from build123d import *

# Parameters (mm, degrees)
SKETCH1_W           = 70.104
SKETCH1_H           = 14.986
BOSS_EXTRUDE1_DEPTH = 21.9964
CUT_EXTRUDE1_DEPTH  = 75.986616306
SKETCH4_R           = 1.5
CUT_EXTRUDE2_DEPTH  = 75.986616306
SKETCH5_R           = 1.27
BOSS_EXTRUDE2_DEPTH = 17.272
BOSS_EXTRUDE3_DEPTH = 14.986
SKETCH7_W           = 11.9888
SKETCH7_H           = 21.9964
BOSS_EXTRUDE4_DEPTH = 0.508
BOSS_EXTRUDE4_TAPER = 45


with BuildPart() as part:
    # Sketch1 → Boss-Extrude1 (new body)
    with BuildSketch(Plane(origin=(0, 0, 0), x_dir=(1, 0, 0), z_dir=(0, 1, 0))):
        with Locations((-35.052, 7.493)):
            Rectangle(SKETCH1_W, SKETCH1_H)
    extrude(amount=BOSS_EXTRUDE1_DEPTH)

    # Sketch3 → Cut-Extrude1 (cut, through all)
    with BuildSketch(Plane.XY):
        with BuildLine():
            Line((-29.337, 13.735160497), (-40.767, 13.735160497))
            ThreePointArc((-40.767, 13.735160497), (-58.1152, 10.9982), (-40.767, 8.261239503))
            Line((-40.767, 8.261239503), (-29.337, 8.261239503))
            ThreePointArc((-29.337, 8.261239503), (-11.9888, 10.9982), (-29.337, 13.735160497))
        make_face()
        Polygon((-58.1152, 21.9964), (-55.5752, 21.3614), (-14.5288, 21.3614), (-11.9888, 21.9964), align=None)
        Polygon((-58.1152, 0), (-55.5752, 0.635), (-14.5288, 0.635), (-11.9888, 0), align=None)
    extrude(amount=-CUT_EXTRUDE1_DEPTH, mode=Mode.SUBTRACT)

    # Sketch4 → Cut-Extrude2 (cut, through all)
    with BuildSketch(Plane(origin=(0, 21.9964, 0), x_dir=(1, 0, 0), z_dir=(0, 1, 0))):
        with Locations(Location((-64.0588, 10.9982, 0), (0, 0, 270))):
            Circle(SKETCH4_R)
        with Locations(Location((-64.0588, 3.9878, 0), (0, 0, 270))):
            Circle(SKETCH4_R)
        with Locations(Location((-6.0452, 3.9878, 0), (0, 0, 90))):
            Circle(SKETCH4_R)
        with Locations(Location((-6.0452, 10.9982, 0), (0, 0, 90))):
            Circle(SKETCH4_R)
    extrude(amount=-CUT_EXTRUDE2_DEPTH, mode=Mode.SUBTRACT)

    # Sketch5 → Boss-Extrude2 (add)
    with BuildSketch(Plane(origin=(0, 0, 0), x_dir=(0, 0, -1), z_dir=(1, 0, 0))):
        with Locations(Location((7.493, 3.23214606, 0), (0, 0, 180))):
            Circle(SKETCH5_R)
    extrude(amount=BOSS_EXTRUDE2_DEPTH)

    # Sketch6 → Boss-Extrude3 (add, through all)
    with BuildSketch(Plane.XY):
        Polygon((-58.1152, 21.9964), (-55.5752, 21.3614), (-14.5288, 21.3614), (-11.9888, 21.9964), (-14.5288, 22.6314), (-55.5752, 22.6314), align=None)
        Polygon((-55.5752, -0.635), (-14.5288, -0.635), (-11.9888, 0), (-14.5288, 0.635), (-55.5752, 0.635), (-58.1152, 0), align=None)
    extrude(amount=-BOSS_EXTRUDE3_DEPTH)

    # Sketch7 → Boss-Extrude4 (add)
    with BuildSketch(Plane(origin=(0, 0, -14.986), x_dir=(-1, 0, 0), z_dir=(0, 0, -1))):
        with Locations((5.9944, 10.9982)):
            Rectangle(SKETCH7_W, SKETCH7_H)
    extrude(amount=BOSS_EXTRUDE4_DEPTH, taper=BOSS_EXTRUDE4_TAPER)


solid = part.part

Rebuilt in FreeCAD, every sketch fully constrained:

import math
import FreeCAD as App
import Part
import Sketcher
from FreeCAD import Vector
Q = App.Units.Quantity


def add_polygon(sketch, points):
    """Adds a closed chain of lines whose ends are joined by coincident constraints."""
    first, n = sketch.GeometryCount, len(points)
    for a, b in zip(points, points[1:] + points[:1]):
        sketch.addGeometry(Part.LineSegment(App.Vector(*a, 0), App.Vector(*b, 0)), False)
    for i in range(n):
        sketch.addConstraint(Sketcher.Constraint("Coincident", first + i, 2, first + (i + 1) % n, 1))

doc = App.newDocument("Part")
params = doc.addObject("Spreadsheet::Sheet", "Params")
for row, (alias, value) in enumerate([
    ("sketch1_width", "2.76 in"),
    ("sketch1_height", "0.59 in"),
    ("pad1_length", "0.866 in"),
    ("sketch2_radius", "0.35 in"),
    ("sketch2_width", "0.45 in"),
    ("sketch2_width2", "1.616 in"),
    ("sketch4_diameter", "0.1 in"),
    ("pad2_length", "0.68 in"),
    ("sketch5_width", "1.616 in"),
    ("pad3_length", "0.59 in"),
    ("sketch6_width", "0.472 in"),
    ("sketch6_height", "0.866 in"),
    ("pad4_length", "0.02 in"),
    ("pad4_taper", "-45 deg"),
], start=1):
    params.set(f"A{row}", alias)
    params.set(f"B{row}", "=" + value)
    params.setAlias(f"B{row}", alias)

body = doc.addObject("PartDesign::Body", "Body")

# Sketch on XZ plane
sketch1 = body.newObject("Sketcher::SketchObject", "Sketch")
sketch1.AttachmentSupport = (doc.getObject("XZ_Plane"), [""])
sketch1.MapMode = "FlatFace"
add_polygon(sketch1, [(-70, -15), (-70, 0), (0, 0), (0, -15)])  # lines 0-3
sketch1.addConstraint(Sketcher.Constraint("Vertical", 0))
sketch1.addConstraint(Sketcher.Constraint("Horizontal", 1))
sketch1.addConstraint(Sketcher.Constraint("Vertical", 2))
sketch1.addConstraint(Sketcher.Constraint("Horizontal", 3))
sketch1.addConstraint(Sketcher.Constraint("Coincident", 1, 2, -1, 1))
sketch1.addConstraint(Sketcher.Constraint("DistanceX", 1, 1, 1, 2, Q("2.76 in")))
sketch1.addConstraint(Sketcher.Constraint("DistanceY", 0, 1, 0, 2, Q("0.59 in")))
sketch1.setExpression("Constraints[9]", "Params.sketch1_width")
sketch1.setExpression("Constraints[10]", "Params.sketch1_height")
pad1 = body.newObject("PartDesign::Pad", "Pad")
pad1.Profile = sketch1
pad1.setExpression("Length", "Params.pad1_length")
pad1.Reversed = True

# Sketch on XY plane
sketch2 = body.newObject("Sketcher::SketchObject", "Sketch001")
sketch2.AttachmentSupport = (doc.getObject("XY_Plane"), [""])
sketch2.MapMode = "FlatFace"
sketch2.addGeometry(Part.LineSegment(Vector(-29.3, 13.7, 0), Vector(-40.8, 13.7, 0)), False)  # 0
sketch2.addGeometry(Part.ArcOfCircle(Part.Circle(Vector(-49.2, 11, 0), Vector(0, 0, 1), 8.9), math.radians(18), math.radians(342)), False)  # 1
sketch2.addGeometry(Part.LineSegment(Vector(-40.8, 8.3, 0), Vector(-29.3, 8.3, 0)), False)  # 2
sketch2.addGeometry(Part.ArcOfCircle(Part.Circle(Vector(-20.9, 11, 0), Vector(0, 0, 1), 8.9), math.radians(-162), math.radians(162)), False)  # 3
add_polygon(sketch2, [(-58.1, 22), (-55.6, 21.4), (-14.5, 21.4), (-12, 22)])  # lines 4-7
add_polygon(sketch2, [(-55.6, 0.6), (-58.1, 0), (-12, 0), (-14.5, 0.6)])  # lines 8-11
sketch2.addConstraint(Sketcher.Constraint("Coincident", 0, 2, 1, 1))
sketch2.addConstraint(Sketcher.Constraint("Coincident", 1, 2, 2, 1))
sketch2.addConstraint(Sketcher.Constraint("Coincident", 2, 2, 3, 1))
sketch2.addConstraint(Sketcher.Constraint("Coincident", 3, 2, 0, 1))
sketch2.addConstraint(Sketcher.Constraint("Horizontal", 0))
sketch2.addConstraint(Sketcher.Constraint("Horizontal", 2))
sketch2.addConstraint(Sketcher.Constraint("Horizontal", 5))
sketch2.addConstraint(Sketcher.Constraint("Horizontal", 7))
sketch2.addConstraint(Sketcher.Constraint("Horizontal", 9))
sketch2.addConstraint(Sketcher.Constraint("Horizontal", 11))
sketch2.addConstraint(Sketcher.Constraint("Equal", 1, 3))
sketch2.addConstraint(Sketcher.Constraint("PointOnObject", 8, 2, -1))
sketch2.addConstraint(Sketcher.Constraint("Parallel", 6, 8))
sketch2.addConstraint(Sketcher.Constraint("Parallel", 4, 10))
sketch2.addConstraint(Sketcher.Constraint("Horizontal", 1, 3, 3, 3))
sketch2.addConstraint(Sketcher.Constraint("Vertical", 0, 2, 1, 2))
sketch2.addConstraint(Sketcher.Constraint("Vertical", 7, 2, 8, 2))
sketch2.addConstraint(Sketcher.Constraint("Vertical", 6, 2, 9, 2))
sketch2.addConstraint(Sketcher.Constraint("Vertical", 5, 2, 10, 2))
sketch2.addConstraint(Sketcher.Constraint("Vertical", 4, 2, 11, 2))
sketch2.addConstraint(Sketcher.Constraint("Radius", 1, Q("0.35 in")))
sketch2.addConstraint(Sketcher.Constraint("DistanceX", 0, 2, 0, 1, Q("0.45 in")))
sketch2.addConstraint(Sketcher.Constraint("DistanceX", 5, 2, 6, 2, Q("0.1 in")))
sketch2.addConstraint(Sketcher.Constraint("DistanceX", 5, 1, 5, 2, Q("1.616 in")))
sketch2.addConstraint(Sketcher.Constraint("DistanceX", 4, 2, 1, 3, Q("0.25 in")))
sketch2.addConstraint(Sketcher.Constraint("DistanceX", 3, 3, 5, 2, Q("0.25 in")))
sketch2.addConstraint(Sketcher.Constraint("DistanceX", 1, 3, -1, 1, Q("1.938 in")))
sketch2.addConstraint(Sketcher.Constraint("DistanceY", -1, 1, 1, 3, Q("0.433 in")))
sketch2.addConstraint(Sketcher.Constraint("DistanceY", -1, 1, 4, 2, Q("0.841 in")))
sketch2.addConstraint(Sketcher.Constraint("DistanceY", -1, 1, 6, 2, Q("0.866 in")))
sketch2.setExpression("Constraints[28]", "Params.sketch2_radius")
sketch2.setExpression("Constraints[29]", "Params.sketch2_width")
sketch2.setExpression("Constraints[31]", "Params.sketch2_width2")
pocket1 = body.newObject("PartDesign::Pocket", "Pocket")
pocket1.Profile = sketch2
pocket1.Type = "ThroughAll"

# Sketch on XZ plane
sketch3 = body.newObject("Sketcher::SketchObject", "Sketch002")
sketch3.AttachmentSupport = (doc.getObject("XZ_Plane"), [""])
sketch3.MapMode = "FlatFace"
sketch3.AttachmentOffset = App.Placement(Vector(0, 0, -0.866 * 25.4), App.Rotation())
sketch3.addGeometry(Part.Circle(Vector(-64.1, -11, 0), Vector(0, 0, 1), 1.5), False)
sketch3.addGeometry(Part.Circle(Vector(-64.1, -4, 0), Vector(0, 0, 1), 1.5), False)
sketch3.addGeometry(Part.Circle(Vector(-6, -4, 0), Vector(0, 0, 1), 1.5), False)
sketch3.addGeometry(Part.Circle(Vector(-6, -11, 0), Vector(0, 0, 1), 1.5), False)
sketch3.addConstraint(Sketcher.Constraint("Equal", 0, 1))
sketch3.addConstraint(Sketcher.Constraint("Equal", 1, 2))
sketch3.addConstraint(Sketcher.Constraint("Equal", 2, 3))
sketch3.addConstraint(Sketcher.Constraint("Horizontal", 1, 3, 2, 3))
sketch3.addConstraint(Sketcher.Constraint("Horizontal", 0, 3, 3, 3))
sketch3.addConstraint(Sketcher.Constraint("Vertical", 0, 3, 1, 3))
sketch3.addConstraint(Sketcher.Constraint("Vertical", 2, 3, 3, 3))
sketch3.addConstraint(Sketcher.Constraint("Diameter", 0, Q("3 mm")))
sketch3.addConstraint(Sketcher.Constraint("DistanceX", 0, 3, -1, 1, Q("2.522 in")))
sketch3.addConstraint(Sketcher.Constraint("DistanceY", 0, 3, -1, 1, Q("0.433 in")))
sketch3.addConstraint(Sketcher.Constraint("DistanceY", 1, 3, -1, 1, Q("0.157 in")))
sketch3.addConstraint(Sketcher.Constraint("DistanceX", 2, 3, -1, 1, Q("0.238 in")))
pocket2 = body.newObject("PartDesign::Pocket", "Pocket001")
pocket2.Profile = sketch3
pocket2.Type = "ThroughAll"
pocket2.Reversed = True

# Sketch on YZ plane
sketch4 = body.newObject("Sketcher::SketchObject", "Sketch003")
sketch4.AttachmentSupport = (doc.getObject("YZ_Plane"), [""])
sketch4.MapMode = "FlatFace"
sketch4.addGeometry(Part.Circle(Vector(3.2, -7.5, 0), Vector(0, 0, 1), 1.3), False)
sketch4.addConstraint(Sketcher.Constraint("Diameter", 0, Q("0.1 in")))
sketch4.addConstraint(Sketcher.Constraint("DistanceY", 0, 3, -1, 1, Q("0.295 in")))
sketch4.addConstraint(Sketcher.Constraint("DistanceX", -1, 1, 0, 3, Q("3.232146 mm")))
sketch4.setExpression("Constraints[0]", "Params.sketch4_diameter")
pad2 = body.newObject("PartDesign::Pad", "Pad001")
pad2.Profile = sketch4
pad2.setExpression("Length", "Params.pad2_length")

# Sketch on XY plane
sketch5 = body.newObject("Sketcher::SketchObject", "Sketch004")
sketch5.AttachmentSupport = (doc.getObject("XY_Plane"), [""])
sketch5.MapMode = "FlatFace"
add_polygon(sketch5, [(-58.1, 22), (-55.6, 21.4), (-14.5, 21.4), (-12, 22), (-14.5, 22.6), (-55.6, 22.6)])  # lines 0-5
add_polygon(sketch5, [(-55.6, -0.6), (-14.5, -0.6), (-12, 0), (-14.5, 0.6), (-55.6, 0.6), (-58.1, 0)])  # lines 6-11
sketch5.addConstraint(Sketcher.Constraint("Horizontal", 1))
sketch5.addConstraint(Sketcher.Constraint("Horizontal", 4))
sketch5.addConstraint(Sketcher.Constraint("Horizontal", 6))
sketch5.addConstraint(Sketcher.Constraint("Horizontal", 9))
sketch5.addConstraint(Sketcher.Constraint("Symmetric", 6, 2, 8, 2, -1))
sketch5.addConstraint(Sketcher.Constraint("PointOnObject", 7, 2, -1))
sketch5.addConstraint(Sketcher.Constraint("PointOnObject", 10, 2, -1))
sketch5.addConstraint(Sketcher.Constraint("Parallel", 0, 3))
sketch5.addConstraint(Sketcher.Constraint("Parallel", 2, 5))
sketch5.addConstraint(Sketcher.Constraint("Parallel", 5, 7))
sketch5.addConstraint(Sketcher.Constraint("Parallel", 3, 8))
sketch5.addConstraint(Sketcher.Constraint("Parallel", 7, 10))
sketch5.addConstraint(Sketcher.Constraint("Parallel", 8, 11))
sketch5.addConstraint(Sketcher.Constraint("Horizontal", 2, 2, 5, 2))
sketch5.addConstraint(Sketcher.Constraint("Vertical", 1, 2, 3, 2))
sketch5.addConstraint(Sketcher.Constraint("Vertical", 3, 2, 6, 2))
sketch5.addConstraint(Sketcher.Constraint("Vertical", 2, 2, 7, 2))
sketch5.addConstraint(Sketcher.Constraint("Vertical", 4, 2, 9, 2))
sketch5.addConstraint(Sketcher.Constraint("DistanceX", 1, 2, 2, 2, Q("0.1 in")))
sketch5.addConstraint(Sketcher.Constraint("DistanceX", 1, 1, 1, 2, Q("1.616 in")))
sketch5.addConstraint(Sketcher.Constraint("DistanceY", 1, 2, 3, 2, Q("0.05 in")))
sketch5.addConstraint(Sketcher.Constraint("DistanceX", 0, 2, -1, 1, Q("2.188 in")))
sketch5.addConstraint(Sketcher.Constraint("DistanceY", -1, 1, 0, 2, Q("0.841 in")))
sketch5.setExpression("Constraints[31]", "Params.sketch5_width")
pad3 = body.newObject("PartDesign::Pad", "Pad002")
pad3.Profile = sketch5
pad3.setExpression("Length", "Params.pad3_length")
pad3.Reversed = True

# Sketch on XY plane
sketch6 = body.newObject("Sketcher::SketchObject", "Sketch005")
sketch6.AttachmentSupport = (doc.getObject("XY_Plane"), [""])
sketch6.MapMode = "FlatFace"
sketch6.AttachmentOffset = App.Placement(Vector(0, 0, -0.59 * 25.4), App.Rotation())
add_polygon(sketch6, [(0, 22), (0, 0), (-12, 0), (-12, 22)])  # lines 0-3
sketch6.addConstraint(Sketcher.Constraint("Vertical", 0))
sketch6.addConstraint(Sketcher.Constraint("Horizontal", 1))
sketch6.addConstraint(Sketcher.Constraint("Vertical", 2))
sketch6.addConstraint(Sketcher.Constraint("Horizontal", 3))
sketch6.addConstraint(Sketcher.Constraint("Coincident", 0, 2, -1, 1))
sketch6.addConstraint(Sketcher.Constraint("DistanceX", 1, 2, 1, 1, Q("0.472 in")))
sketch6.addConstraint(Sketcher.Constraint("DistanceY", 0, 2, 0, 1, Q("0.866 in")))
sketch6.setExpression("Constraints[9]", "Params.sketch6_width")
sketch6.setExpression("Constraints[10]", "Params.sketch6_height")
pad4 = body.newObject("PartDesign::Pad", "Pad003")
pad4.Profile = sketch6
pad4.setExpression("Length", "Params.pad4_length")
pad4.Reversed = True
pad4.setExpression("TaperAngle", "Params.pad4_taper")

doc.recompute()
